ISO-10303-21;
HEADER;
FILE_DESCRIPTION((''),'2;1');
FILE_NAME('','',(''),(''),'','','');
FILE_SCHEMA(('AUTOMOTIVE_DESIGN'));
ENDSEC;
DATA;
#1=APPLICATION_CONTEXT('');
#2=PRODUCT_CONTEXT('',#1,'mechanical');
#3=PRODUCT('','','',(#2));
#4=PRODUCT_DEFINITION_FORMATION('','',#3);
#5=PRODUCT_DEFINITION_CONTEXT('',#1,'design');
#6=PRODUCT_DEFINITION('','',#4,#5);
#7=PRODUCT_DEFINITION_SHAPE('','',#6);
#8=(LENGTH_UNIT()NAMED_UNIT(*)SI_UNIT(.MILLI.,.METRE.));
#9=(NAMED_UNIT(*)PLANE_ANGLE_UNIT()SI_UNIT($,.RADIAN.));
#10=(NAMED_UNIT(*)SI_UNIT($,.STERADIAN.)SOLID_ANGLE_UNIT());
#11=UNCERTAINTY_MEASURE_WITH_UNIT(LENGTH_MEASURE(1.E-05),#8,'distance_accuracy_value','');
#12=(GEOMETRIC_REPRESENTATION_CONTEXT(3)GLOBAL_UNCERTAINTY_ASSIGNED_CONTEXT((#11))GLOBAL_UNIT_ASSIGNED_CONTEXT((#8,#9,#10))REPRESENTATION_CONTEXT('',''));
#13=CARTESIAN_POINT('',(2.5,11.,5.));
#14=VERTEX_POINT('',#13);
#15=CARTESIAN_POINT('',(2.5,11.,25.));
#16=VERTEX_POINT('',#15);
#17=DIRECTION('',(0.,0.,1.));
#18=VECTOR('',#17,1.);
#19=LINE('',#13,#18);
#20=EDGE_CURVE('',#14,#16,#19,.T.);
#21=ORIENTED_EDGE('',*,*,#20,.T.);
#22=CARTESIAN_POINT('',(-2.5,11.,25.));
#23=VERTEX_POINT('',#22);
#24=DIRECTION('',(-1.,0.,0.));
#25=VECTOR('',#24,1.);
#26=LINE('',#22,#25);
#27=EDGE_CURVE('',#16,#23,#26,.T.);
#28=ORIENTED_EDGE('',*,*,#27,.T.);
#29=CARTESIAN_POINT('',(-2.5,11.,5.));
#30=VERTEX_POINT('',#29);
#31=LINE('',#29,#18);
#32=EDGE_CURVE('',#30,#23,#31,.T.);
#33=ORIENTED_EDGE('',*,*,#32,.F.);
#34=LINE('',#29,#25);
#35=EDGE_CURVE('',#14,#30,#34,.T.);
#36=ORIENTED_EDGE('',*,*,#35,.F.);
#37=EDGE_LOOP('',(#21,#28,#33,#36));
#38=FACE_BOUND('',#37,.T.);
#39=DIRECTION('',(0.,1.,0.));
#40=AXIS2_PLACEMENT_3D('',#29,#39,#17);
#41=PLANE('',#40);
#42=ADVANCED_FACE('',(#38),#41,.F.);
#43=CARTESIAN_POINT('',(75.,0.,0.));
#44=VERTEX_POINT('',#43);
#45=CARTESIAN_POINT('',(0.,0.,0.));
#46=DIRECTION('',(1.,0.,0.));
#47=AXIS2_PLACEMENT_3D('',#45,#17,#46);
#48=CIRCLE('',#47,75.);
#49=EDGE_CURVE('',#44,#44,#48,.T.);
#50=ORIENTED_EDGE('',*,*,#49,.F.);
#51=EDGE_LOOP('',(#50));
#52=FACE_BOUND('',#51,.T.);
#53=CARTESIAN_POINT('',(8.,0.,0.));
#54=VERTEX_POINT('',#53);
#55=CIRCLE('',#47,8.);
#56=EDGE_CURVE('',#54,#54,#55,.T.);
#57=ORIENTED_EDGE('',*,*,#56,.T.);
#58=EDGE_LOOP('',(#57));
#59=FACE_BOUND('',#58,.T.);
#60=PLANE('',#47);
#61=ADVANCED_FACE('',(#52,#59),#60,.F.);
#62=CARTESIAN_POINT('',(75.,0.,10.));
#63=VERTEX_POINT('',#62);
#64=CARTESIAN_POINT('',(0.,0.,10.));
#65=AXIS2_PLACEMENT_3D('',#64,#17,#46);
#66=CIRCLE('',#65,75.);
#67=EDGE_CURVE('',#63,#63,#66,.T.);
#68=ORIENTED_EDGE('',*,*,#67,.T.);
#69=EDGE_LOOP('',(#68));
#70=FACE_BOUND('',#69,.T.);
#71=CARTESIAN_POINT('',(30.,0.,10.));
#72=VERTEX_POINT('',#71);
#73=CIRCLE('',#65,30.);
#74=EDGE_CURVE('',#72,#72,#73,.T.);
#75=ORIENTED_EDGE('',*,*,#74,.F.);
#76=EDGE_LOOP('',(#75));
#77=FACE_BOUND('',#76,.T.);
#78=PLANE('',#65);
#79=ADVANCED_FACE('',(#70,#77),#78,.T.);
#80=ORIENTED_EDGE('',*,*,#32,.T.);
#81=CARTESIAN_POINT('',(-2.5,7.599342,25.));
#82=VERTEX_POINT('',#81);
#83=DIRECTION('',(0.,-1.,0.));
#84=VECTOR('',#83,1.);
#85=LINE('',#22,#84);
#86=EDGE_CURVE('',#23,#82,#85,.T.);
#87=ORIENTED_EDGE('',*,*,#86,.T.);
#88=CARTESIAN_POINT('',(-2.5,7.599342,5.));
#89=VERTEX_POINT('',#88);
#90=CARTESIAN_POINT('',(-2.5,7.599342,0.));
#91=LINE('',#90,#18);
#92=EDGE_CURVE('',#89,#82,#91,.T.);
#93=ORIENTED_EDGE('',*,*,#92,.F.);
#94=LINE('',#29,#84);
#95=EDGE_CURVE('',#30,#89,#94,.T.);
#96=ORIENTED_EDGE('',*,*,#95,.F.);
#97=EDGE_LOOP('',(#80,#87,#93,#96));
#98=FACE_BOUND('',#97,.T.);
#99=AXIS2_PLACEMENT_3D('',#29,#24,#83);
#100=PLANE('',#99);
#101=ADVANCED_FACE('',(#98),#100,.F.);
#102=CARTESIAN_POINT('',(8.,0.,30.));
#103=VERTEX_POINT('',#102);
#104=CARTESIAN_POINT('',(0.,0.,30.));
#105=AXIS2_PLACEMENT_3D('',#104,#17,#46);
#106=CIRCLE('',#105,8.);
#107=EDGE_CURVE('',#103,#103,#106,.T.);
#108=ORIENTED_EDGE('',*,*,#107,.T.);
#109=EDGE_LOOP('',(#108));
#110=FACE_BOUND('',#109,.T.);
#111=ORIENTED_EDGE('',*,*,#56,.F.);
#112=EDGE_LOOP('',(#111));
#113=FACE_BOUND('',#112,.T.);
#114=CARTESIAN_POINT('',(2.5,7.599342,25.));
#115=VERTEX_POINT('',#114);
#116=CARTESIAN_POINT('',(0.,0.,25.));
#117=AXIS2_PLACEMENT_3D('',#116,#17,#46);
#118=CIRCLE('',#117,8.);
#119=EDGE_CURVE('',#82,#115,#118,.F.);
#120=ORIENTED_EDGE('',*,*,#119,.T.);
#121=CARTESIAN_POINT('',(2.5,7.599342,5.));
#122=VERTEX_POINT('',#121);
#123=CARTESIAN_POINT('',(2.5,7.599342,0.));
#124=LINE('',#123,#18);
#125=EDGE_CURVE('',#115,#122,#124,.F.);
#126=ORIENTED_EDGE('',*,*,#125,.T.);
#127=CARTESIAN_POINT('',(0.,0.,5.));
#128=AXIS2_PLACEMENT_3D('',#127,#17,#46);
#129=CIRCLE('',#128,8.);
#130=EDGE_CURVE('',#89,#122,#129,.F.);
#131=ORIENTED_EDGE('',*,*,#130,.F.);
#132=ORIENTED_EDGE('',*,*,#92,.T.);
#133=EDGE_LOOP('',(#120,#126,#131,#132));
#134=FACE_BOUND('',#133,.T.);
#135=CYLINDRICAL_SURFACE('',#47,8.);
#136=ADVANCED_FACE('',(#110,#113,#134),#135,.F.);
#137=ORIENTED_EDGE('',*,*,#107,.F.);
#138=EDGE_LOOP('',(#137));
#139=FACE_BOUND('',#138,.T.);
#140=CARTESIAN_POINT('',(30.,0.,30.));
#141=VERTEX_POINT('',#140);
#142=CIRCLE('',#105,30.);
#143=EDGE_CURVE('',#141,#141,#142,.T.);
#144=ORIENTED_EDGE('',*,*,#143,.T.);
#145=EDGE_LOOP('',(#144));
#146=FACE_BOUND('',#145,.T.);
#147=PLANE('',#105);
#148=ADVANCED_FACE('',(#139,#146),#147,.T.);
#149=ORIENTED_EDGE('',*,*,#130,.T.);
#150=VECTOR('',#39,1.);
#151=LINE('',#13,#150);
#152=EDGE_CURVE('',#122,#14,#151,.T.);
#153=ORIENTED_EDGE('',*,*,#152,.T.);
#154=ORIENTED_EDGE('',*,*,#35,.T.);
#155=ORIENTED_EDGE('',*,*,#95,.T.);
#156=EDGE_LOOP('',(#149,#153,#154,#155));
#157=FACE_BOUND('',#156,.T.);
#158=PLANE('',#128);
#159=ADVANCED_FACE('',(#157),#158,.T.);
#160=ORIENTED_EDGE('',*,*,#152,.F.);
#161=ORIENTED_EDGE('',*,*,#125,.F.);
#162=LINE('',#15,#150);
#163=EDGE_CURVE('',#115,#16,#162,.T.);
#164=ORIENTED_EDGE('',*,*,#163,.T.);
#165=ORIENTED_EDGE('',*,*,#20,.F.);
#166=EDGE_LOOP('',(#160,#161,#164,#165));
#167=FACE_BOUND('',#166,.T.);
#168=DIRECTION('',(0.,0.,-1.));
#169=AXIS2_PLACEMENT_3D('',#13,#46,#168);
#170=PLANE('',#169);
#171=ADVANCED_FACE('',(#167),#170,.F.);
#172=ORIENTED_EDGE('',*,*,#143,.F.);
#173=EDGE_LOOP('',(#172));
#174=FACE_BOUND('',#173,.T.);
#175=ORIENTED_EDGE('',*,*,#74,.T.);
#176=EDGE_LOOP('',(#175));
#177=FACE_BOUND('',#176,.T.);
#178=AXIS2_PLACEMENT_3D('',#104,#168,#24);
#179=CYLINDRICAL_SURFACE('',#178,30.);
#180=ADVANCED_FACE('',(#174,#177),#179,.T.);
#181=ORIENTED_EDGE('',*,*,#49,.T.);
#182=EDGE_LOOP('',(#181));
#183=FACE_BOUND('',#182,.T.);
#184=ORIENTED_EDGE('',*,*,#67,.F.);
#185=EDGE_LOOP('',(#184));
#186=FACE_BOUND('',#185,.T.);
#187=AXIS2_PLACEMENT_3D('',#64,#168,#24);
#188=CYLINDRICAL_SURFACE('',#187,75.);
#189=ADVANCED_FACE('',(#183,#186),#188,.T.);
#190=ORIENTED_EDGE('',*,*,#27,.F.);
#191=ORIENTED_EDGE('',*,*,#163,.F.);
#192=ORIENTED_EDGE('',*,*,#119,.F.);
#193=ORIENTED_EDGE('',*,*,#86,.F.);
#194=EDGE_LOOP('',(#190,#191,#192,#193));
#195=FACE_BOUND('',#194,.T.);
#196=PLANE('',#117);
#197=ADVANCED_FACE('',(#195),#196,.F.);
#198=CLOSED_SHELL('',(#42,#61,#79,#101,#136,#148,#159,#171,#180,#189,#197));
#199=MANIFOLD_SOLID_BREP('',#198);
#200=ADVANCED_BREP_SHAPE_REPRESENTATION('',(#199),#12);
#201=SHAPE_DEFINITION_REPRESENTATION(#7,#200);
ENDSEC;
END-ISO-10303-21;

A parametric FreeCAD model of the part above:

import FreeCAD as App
import Part
import Sketcher

V = App.Vector

doc = App.newDocument("Part")
body = doc.addObject("PartDesign::Body", "Body")

sketch1 = body.newObject("Sketcher::SketchObject", "Sketch")
sketch1.AttachmentSupport = (doc.getObject("XY_Plane"), [""])
sketch1.MapMode = "FlatFace"
sketch1.addGeometry(Part.Circle(V(0, 0, 0), V(0, 0, 1), 75), False)
sketch1.addConstraint(Sketcher.Constraint("Coincident", 0, 3, -1, 1))
sketch1.addConstraint(Sketcher.Constraint("Diameter", 0, 150.0))
pad1 = body.newObject("PartDesign::Pad", "Pad")
pad1.Profile = sketch1
pad1.Length = 10

sketch2 = body.newObject("Sketcher::SketchObject", "Sketch001")
sketch2.AttachmentSupport = (doc.getObject("XY_Plane"), [""])
sketch2.MapMode = "FlatFace"
sketch2.AttachmentOffset = App.Placement(V(0, 0, 10), App.Rotation())
sketch2.addGeometry(Part.Circle(V(0, 0, 0), V(0, 0, 1), 30), False)
sketch2.addConstraint(Sketcher.Constraint("Coincident", 0, 3, -1, 1))
sketch2.addConstraint(Sketcher.Constraint("Diameter", 0, 60.0))
pad2 = body.newObject("PartDesign::Pad", "Pad001")
pad2.Profile = sketch2
pad2.Length = 20

sketch3 = body.newObject("Sketcher::SketchObject", "Sketch002")
sketch3.AttachmentSupport = (doc.getObject("XY_Plane"), [""])
sketch3.MapMode = "FlatFace"
sketch3.AttachmentOffset = App.Placement(V(0, 0, 30), App.Rotation())
sketch3.addGeometry(Part.Circle(V(0, 0, 0), V(0, 0, 1), 8), False)
sketch3.addConstraint(Sketcher.Constraint("Coincident", 0, 3, -1, 1))
sketch3.addConstraint(Sketcher.Constraint("Diameter", 0, 16.0))
pocket1 = body.newObject("PartDesign::Pocket", "Pocket")
pocket1.Profile = sketch3
pocket1.Type = "ThroughAll"

sketch4 = body.newObject("Sketcher::SketchObject", "Sketch003")
sketch4.AttachmentSupport = (doc.getObject("XY_Plane"), [""])
sketch4.MapMode = "FlatFace"
sketch4.AttachmentOffset = App.Placement(V(0, 0, 25), App.Rotation())
sketch4.addGeometry(Part.LineSegment(V(-2, 11, 0), V(-2, 5, 0)), False)
sketch4.addGeometry(Part.LineSegment(V(-2, 5, 0), V(2, 5, 0)), False)
sketch4.addGeometry(Part.LineSegment(V(2, 5, 0), V(2, 11, 0)), False)
sketch4.addGeometry(Part.LineSegment(V(2, 11, 0), V(-2, 11, 0)), False)
sketch4.addConstraint(Sketcher.Constraint("Coincident", 0, 2, 1, 1))
sketch4.addConstraint(Sketcher.Constraint("Coincident", 1, 2, 2, 1))
sketch4.addConstraint(Sketcher.Constraint("Coincident", 2, 2, 3, 1))
sketch4.addConstraint(Sketcher.Constraint("Coincident", 3, 2, 0, 1))
sketch4.addConstraint(Sketcher.Constraint("Vertical", 0))
sketch4.addConstraint(Sketcher.Constraint("Horizontal", 1))
sketch4.addConstraint(Sketcher.Constraint("Vertical", 2))
sketch4.addConstraint(Sketcher.Constraint("Horizontal", 3))
sketch4.addConstraint(Sketcher.Constraint("DistanceX", 1, 1, 1, 2, 5.0))
sketch4.addConstraint(Sketcher.Constraint("DistanceY", 0, 2, 0, 1, 6.0))
sketch4.addConstraint(Sketcher.Constraint("DistanceY", -1, 1, 0, 2, 5.0))
sketch4.addConstraint(Sketcher.Constraint("DistanceX", 0, 2, -1, 1, 2.5))
pocket2 = body.newObject("PartDesign::Pocket", "Pocket001")
pocket2.Profile = sketch4
pocket2.Length = 20

doc.recompute()
